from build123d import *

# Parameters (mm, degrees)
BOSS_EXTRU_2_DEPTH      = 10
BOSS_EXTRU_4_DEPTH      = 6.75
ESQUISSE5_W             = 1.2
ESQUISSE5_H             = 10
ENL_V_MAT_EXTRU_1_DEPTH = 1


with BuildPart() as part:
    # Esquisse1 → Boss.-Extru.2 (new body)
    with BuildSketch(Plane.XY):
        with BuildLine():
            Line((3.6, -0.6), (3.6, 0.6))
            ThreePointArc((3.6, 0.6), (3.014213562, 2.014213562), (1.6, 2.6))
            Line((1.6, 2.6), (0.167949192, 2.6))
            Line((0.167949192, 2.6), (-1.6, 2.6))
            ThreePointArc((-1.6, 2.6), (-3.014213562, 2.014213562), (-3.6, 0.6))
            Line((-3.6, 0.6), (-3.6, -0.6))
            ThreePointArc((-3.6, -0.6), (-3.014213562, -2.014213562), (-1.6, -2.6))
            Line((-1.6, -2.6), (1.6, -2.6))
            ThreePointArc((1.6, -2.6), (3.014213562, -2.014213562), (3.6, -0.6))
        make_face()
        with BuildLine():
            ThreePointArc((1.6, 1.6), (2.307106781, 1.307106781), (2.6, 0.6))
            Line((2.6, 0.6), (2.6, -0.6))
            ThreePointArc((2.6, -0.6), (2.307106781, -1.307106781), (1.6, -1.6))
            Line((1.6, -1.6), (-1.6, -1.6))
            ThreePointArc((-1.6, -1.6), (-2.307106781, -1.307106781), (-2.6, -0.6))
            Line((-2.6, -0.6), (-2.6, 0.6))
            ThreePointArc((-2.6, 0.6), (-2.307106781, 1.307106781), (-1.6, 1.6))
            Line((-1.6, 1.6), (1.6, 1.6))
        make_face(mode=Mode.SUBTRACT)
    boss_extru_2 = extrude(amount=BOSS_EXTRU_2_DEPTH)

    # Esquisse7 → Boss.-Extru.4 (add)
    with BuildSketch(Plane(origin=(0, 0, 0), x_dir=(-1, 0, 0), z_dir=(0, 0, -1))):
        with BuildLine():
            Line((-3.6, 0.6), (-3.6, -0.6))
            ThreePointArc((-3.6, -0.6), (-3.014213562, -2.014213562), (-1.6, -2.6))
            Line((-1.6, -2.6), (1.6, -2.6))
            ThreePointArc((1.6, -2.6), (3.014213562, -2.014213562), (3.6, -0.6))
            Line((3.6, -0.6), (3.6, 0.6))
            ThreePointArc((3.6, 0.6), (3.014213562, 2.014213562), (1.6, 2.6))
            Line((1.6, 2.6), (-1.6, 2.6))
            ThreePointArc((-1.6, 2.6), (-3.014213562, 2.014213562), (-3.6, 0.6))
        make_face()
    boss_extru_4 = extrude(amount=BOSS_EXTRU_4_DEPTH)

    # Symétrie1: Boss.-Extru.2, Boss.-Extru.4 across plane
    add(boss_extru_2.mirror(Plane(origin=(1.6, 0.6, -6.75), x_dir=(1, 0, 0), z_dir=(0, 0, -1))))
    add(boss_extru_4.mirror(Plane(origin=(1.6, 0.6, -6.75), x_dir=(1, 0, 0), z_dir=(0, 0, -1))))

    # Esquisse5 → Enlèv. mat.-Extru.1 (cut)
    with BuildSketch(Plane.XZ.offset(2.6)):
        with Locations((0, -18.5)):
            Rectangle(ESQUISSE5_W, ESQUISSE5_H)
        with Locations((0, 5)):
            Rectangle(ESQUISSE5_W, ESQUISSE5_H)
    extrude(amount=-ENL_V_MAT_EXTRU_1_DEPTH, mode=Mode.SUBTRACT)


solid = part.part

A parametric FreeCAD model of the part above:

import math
import FreeCAD as App
import Part
import Sketcher
from FreeCAD import Vector
Q = App.Units.Quantity


def add_polygon(sketch, points):
    """Adds a closed chain of lines whose ends are joined by coincident constraints."""
    first, n = sketch.GeometryCount, len(points)
    for a, b in zip(points, points[1:] + points[:1]):
        sketch.addGeometry(Part.LineSegment(App.Vector(*a, 0), App.Vector(*b, 0)), False)
    for i in range(n):
        sketch.addConstraint(Sketcher.Constraint("Coincident", first + i, 2, first + (i + 1) % n, 1))

doc = App.newDocument("Part")
params = doc.addObject("Spreadsheet::Sheet", "Params")
for row, (alias, value) in enumerate([
    ("sketch1_radius", "2 mm"),
    ("sketch1_radius2", "1 mm"),
    ("sketch1_width", "3.2 mm"),
    ("sketch1_height", "1.2 mm"),
    ("pad1_length", "10 mm"),
    ("sketch2_radius", "2 mm"),
    ("sketch2_width", "3.2 mm"),
    ("sketch2_height", "1.2 mm"),
    ("pad2_length", "6.75 mm"),
    ("sketch3_height", "10 mm"),
    ("sketch3_width", "1.2 mm"),
    ("pocket1_length", "1 mm"),
], start=1):
    params.set(f"A{row}", alias)
    params.set(f"B{row}", "=" + value)
    params.setAlias(f"B{row}", alias)

body = doc.addObject("PartDesign::Body", "Body")

# Sketch on XY plane
sketch1 = body.newObject("Sketcher::SketchObject", "Sketch")
sketch1.AttachmentSupport = (doc.getObject("XY_Plane"), [""])
sketch1.MapMode = "FlatFace"
sketch1.addGeometry(Part.LineSegment(Vector(3.6, -0.6, 0), Vector(3.6, 0.6, 0)), False)
sketch1.addGeometry(Part.ArcOfCircle(Part.Circle(Vector(1.6, 0.6, 0), Vector(0, 0, 1), 2), math.radians(0), math.radians(90)), False)
sketch1.addGeometry(Part.LineSegment(Vector(1.6, 2.6, 0), Vector(-1.6, 2.6, 0)), False)
sketch1.addGeometry(Part.ArcOfCircle(Part.Circle(Vector(-1.6, 0.6, 0), Vector(0, 0, 1), 2), math.radians(90), math.radians(180)), False)
sketch1.addGeometry(Part.LineSegment(Vector(-3.6, 0.6, 0), Vector(-3.6, -0.6, 0)), False)
sketch1.addGeometry(Part.ArcOfCircle(Part.Circle(Vector(-1.6, -0.6, 0), Vector(0, 0, 1), 2), math.radians(-180), math.radians(-90)), False)
sketch1.addGeometry(Part.LineSegment(Vector(-1.6, -2.6, 0), Vector(1.6, -2.6, 0)), False)
sketch1.addGeometry(Part.ArcOfCircle(Part.Circle(Vector(1.6, -0.6, 0), Vector(0, 0, 1), 2), math.radians(-90), math.radians(0)), False)
sketch1.addGeometry(Part.LineSegment(Vector(-1.6, 1.6, 0), Vector(1.6, 1.6, 0)), False)
sketch1.addGeometry(Part.ArcOfCircle(Part.Circle(Vector(1.6, 0.6, 0), Vector(0, 0, 1), 1), math.radians(0), math.radians(90)), False)
sketch1.addGeometry(Part.LineSegment(Vector(2.6, 0.6, 0), Vector(2.6, -0.6, 0)), False)
sketch1.addGeometry(Part.ArcOfCircle(Part.Circle(Vector(1.6, -0.6, 0), Vector(0, 0, 1), 1), math.radians(-90), math.radians(0)), False)
sketch1.addGeometry(Part.LineSegment(Vector(1.6, -1.6, 0), Vector(-1.6, -1.6, 0)), False)
sketch1.addGeometry(Part.ArcOfCircle(Part.Circle(Vector(-1.6, -0.6, 0), Vector(0, 0, 1), 1), math.radians(-180), math.radians(-90)), False)
sketch1.addGeometry(Part.LineSegment(Vector(-2.6, -0.6, 0), Vector(-2.6, 0.6, 0)), False)
sketch1.addGeometry(Part.ArcOfCircle(Part.Circle(Vector(-1.6, 0.6, 0), Vector(0, 0, 1), 1), math.radians(90), math.radians(180)), False)
sketch1.addConstraint(Sketcher.Constraint("Tangent", 0, 2, 1, 1))
sketch1.addConstraint(Sketcher.Constraint("Tangent", 1, 2, 2, 1))
sketch1.addConstraint(Sketcher.Constraint("Tangent", 2, 2, 3, 1))
sketch1.addConstraint(Sketcher.Constraint("Tangent", 3, 2, 4, 1))
sketch1.addConstraint(Sketcher.Constraint("Tangent", 4, 2, 5, 1))
sketch1.addConstraint(Sketcher.Constraint("Tangent", 5, 2, 6, 1))
sketch1.addConstraint(Sketcher.Constraint("Tangent", 6, 2, 7, 1))
sketch1.addConstraint(Sketcher.Constraint("Tangent", 7, 2, 0, 1))
sketch1.addConstraint(Sketcher.Constraint("Tangent", 8, 2, 9, 2))
sketch1.addConstraint(Sketcher.Constraint("Tangent", 9, 1, 10, 1))
sketch1.addConstraint(Sketcher.Constraint("Tangent", 10, 2, 11, 2))
sketch1.addConstraint(Sketcher.Constraint("Tangent", 11, 1, 12, 1))
sketch1.addConstraint(Sketcher.Constraint("Tangent", 12, 2, 13, 2))
sketch1.addConstraint(Sketcher.Constraint("Tangent", 13, 1, 14, 1))
sketch1.addConstraint(Sketcher.Constraint("Tangent", 14, 2, 15, 2))
sketch1.addConstraint(Sketcher.Constraint("Tangent", 15, 1, 8, 1))
sketch1.addConstraint(Sketcher.Constraint("Vertical", 0))
sketch1.addConstraint(Sketcher.Constraint("Horizontal", 2))
sketch1.addConstraint(Sketcher.Constraint("Vertical", 4))
sketch1.addConstraint(Sketcher.Constraint("Horizontal", 6))
sketch1.addConstraint(Sketcher.Constraint("Horizontal", 8))
sketch1.addConstraint(Sketcher.Constraint("Vertical", 10))
sketch1.addConstraint(Sketcher.Constraint("Horizontal", 12))
sketch1.addConstraint(Sketcher.Constraint("Vertical", 14))
sketch1.addConstraint(Sketcher.Constraint("Coincident", 9, 3, 1, 3))
sketch1.addConstraint(Sketcher.Constraint("Coincident", 11, 3, 7, 3))
sketch1.addConstraint(Sketcher.Constraint("Coincident", 13, 3, 5, 3))
sketch1.addConstraint(Sketcher.Constraint("Equal", 1, 3))
sketch1.addConstraint(Sketcher.Constraint("Equal", 3, 5))
sketch1.addConstraint(Sketcher.Constraint("Equal", 5, 7))
sketch1.addConstraint(Sketcher.Constraint("Equal", 13, 15))
sketch1.addConstraint(Sketcher.Constraint("Symmetric", 1, 3, 5, 3, -1, 1))
sketch1.addConstraint(Sketcher.Constraint("Radius", 1, Q("2 mm")))
sketch1.addConstraint(Sketcher.Constraint("Radius", 9, Q("1 mm")))
sketch1.addConstraint(Sketcher.Constraint("DistanceX", 2, 2, 2, 1, Q("3.2 mm")))
sketch1.addConstraint(Sketcher.Constraint("DistanceY", 0, 1, 0, 2, Q("1.2 mm")))
sketch1.setExpression("Constraints[32]", "Params.sketch1_radius")
sketch1.setExpression("Constraints[33]", "Params.sketch1_radius2")
sketch1.setExpression("Constraints[34]", "Params.sketch1_width")
sketch1.setExpression("Constraints[35]", "Params.sketch1_height")
pad1 = body.newObject("PartDesign::Pad", "Pad")
pad1.Profile = sketch1
pad1.setExpression("Length", "Params.pad1_length")

# Sketch on XY plane
sketch2 = body.newObject("Sketcher::SketchObject", "Sketch001")
sketch2.AttachmentSupport = (doc.getObject("XY_Plane"), [""])
sketch2.MapMode = "FlatFace"
sketch2.addGeometry(Part.LineSegment(Vector(3.6, 0.6, 0), Vector(3.6, -0.6, 0)), False)
sketch2.addGeometry(Part.ArcOfCircle(Part.Circle(Vector(1.6, -0.6, 0), Vector(0, 0, 1), 2), math.radians(-90), math.radians(0)), False)
sketch2.addGeometry(Part.LineSegment(Vector(1.6, -2.6, 0), Vector(-1.6, -2.6, 0)), False)
sketch2.addGeometry(Part.ArcOfCircle(Part.Circle(Vector(-1.6, -0.6, 0), Vector(0, 0, 1), 2), math.radians(-180), math.radians(-90)), False)
sketch2.addGeometry(Part.LineSegment(Vector(-3.6, -0.6, 0), Vector(-3.6, 0.6, 0)), False)
sketch2.addGeometry(Part.ArcOfCircle(Part.Circle(Vector(-1.6, 0.6, 0), Vector(0, 0, 1), 2), math.radians(90), math.radians(180)), False)
sketch2.addGeometry(Part.LineSegment(Vector(-1.6, 2.6, 0), Vector(1.6, 2.6, 0)), False)
sketch2.addGeometry(Part.ArcOfCircle(Part.Circle(Vector(1.6, 0.6, 0), Vector(0, 0, 1), 2), math.radians(0), math.radians(90)), False)
sketch2.addConstraint(Sketcher.Constraint("Tangent", 0, 2, 1, 2))
sketch2.addConstraint(Sketcher.Constraint("Tangent", 1, 1, 2, 1))
sketch2.addConstraint(Sketcher.Constraint("Tangent", 2, 2, 3, 2))
sketch2.addConstraint(Sketcher.Constraint("Tangent", 3, 1, 4, 1))
sketch2.addConstraint(Sketcher.Constraint("Tangent", 4, 2, 5, 2))
sketch2.addConstraint(Sketcher.Constraint("Tangent", 5, 1, 6, 1))
sketch2.addConstraint(Sketcher.Constraint("Tangent", 6, 2, 7, 2))
sketch2.addConstraint(Sketcher.Constraint("Tangent", 7, 1, 0, 1))
sketch2.addConstraint(Sketcher.Constraint("Vertical", 0))
sketch2.addConstraint(Sketcher.Constraint("Horizontal", 2))
sketch2.addConstraint(Sketcher.Constraint("Vertical", 4))
sketch2.addConstraint(Sketcher.Constraint("Horizontal", 6))
sketch2.addConstraint(Sketcher.Constraint("Equal", 1, 3))
sketch2.addConstraint(Sketcher.Constraint("Equal", 3, 5))
sketch2.addConstraint(Sketcher.Constraint("Equal", 5, 7))
sketch2.addConstraint(Sketcher.Constraint("Symmetric", 1, 3, 5, 3, -1, 1))
sketch2.addConstraint(Sketcher.Constraint("Radius", 1, Q("2 mm")))
sketch2.addConstraint(Sketcher.Constraint("DistanceX", 2, 2, 2, 1, Q("3.2 mm")))
sketch2.addConstraint(Sketcher.Constraint("DistanceY", 0, 2, 0, 1, Q("1.2 mm")))
sketch2.setExpression("Constraints[16]", "Params.sketch2_radius")
sketch2.setExpression("Constraints[17]", "Params.sketch2_width")
sketch2.setExpression("Constraints[18]", "Params.sketch2_height")
pad2 = body.newObject("PartDesign::Pad", "Pad001")
pad2.Profile = sketch2
pad2.setExpression("Length", "Params.pad2_length")
pad2.Reversed = True
doc.recompute()

datumplane = body.newObject("PartDesign::Plane", "DatumPlane")
datumplane.AttachmentSupport = (doc.getObject("XY_Plane"), [""])
datumplane.MapMode = "FlatFace"
datumplane.AttachmentOffset = App.Placement(Vector(0, 0, -6.75), App.Rotation())
mirrored = body.newObject("PartDesign::Mirrored", "Mirrored")
mirrored.Originals = [pad1, pad2]
mirrored.MirrorPlane = (datumplane, [""])
body.Tip = mirrored

# Sketch on XZ plane
sketch3 = body.newObject("Sketcher::SketchObject", "Sketch002")
sketch3.AttachmentSupport = (doc.getObject("XZ_Plane"), [""])
sketch3.MapMode = "FlatFace"
sketch3.AttachmentOffset = App.Placement(Vector(0, 0, 2.6), App.Rotation())
add_polygon(sketch3, [(-0.6, -13.5), (-0.6, -23.5), (0.6, -23.5), (0.6, -13.5)])  # lines 0-3
add_polygon(sketch3, [(-0.6, 10), (-0.6, 0), (0.6, 0), (0.6, 10)])  # lines 4-7
sketch3.addConstraint(Sketcher.Constraint("Vertical", 0))
sketch3.addConstraint(Sketcher.Constraint("Horizontal", 1))
sketch3.addConstraint(Sketcher.Constraint("Vertical", 2))
sketch3.addConstraint(Sketcher.Constraint("Horizontal", 3))
sketch3.addConstraint(Sketcher.Constraint("Vertical", 4))
sketch3.addConstraint(Sketcher.Constraint("Horizontal", 5))
sketch3.addConstraint(Sketcher.Constraint("Vertical", 6))
sketch3.addConstraint(Sketcher.Constraint("Horizontal", 7))
sketch3.addConstraint(Sketcher.Constraint("Symmetric", 4, 2, 5, 2, -1, 1))
sketch3.addConstraint(Sketcher.Constraint("Vertical", 3, 2, 4, 2))
sketch3.addConstraint(Sketcher.Constraint("Vertical", 2, 2, 5, 2))
sketch3.addConstraint(Sketcher.Constraint("Equal", 2, 4))
sketch3.addConstraint(Sketcher.Constraint("DistanceY", 0, 2, 0, 1, Q("10 mm")))
sketch3.addConstraint(Sketcher.Constraint("DistanceX", 1, 1, 1, 2, Q("1.2 mm")))
sketch3.addConstraint(Sketcher.Constraint("DistanceY", 0, 2, -1, 1, Q("23.5 mm")))
sketch3.setExpression("Constraints[20]", "Params.sketch3_height")
sketch3.setExpression("Constraints[21]", "Params.sketch3_width")
pocket1 = body.newObject("PartDesign::Pocket", "Pocket")
pocket1.Profile = sketch3
pocket1.setExpression("Length", "Params.pocket1_length")

doc.recompute()
